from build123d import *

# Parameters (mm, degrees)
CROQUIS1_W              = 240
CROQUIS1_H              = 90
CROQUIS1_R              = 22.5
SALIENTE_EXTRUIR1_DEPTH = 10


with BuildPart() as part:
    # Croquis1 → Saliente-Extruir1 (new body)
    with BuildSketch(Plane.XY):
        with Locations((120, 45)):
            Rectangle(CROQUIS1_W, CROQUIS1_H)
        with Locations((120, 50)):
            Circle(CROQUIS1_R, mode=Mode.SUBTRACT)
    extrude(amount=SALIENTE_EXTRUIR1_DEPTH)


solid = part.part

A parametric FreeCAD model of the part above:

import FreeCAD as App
import Part
import Sketcher
from FreeCAD import Vector

doc = App.newDocument("Part")
params = doc.addObject("Spreadsheet::Sheet", "Params")
for row, (alias, value) in enumerate([
    ("sketch1_diameter", "45 mm"),
    ("sketch1_width", "240 mm"),
    ("sketch1_height", "90 mm"),
    ("pad1_length", "10 mm"),
], start=1):
    params.set(f"A{row}", alias)
    params.set(f"B{row}", "=" + value)
    params.setAlias(f"B{row}", alias)

body = doc.addObject("PartDesign::Body", "Body")

sketch1 = body.newObject("Sketcher::SketchObject", "Sketch")
sketch1.AttachmentSupport = (doc.getObject("XY_Plane"), [""])
sketch1.MapMode = "FlatFace"
sketch1.addGeometry([
    Part.LineSegment(Vector(0, 90, 0), Vector(0, 0, 0)),
    Part.LineSegment(Vector(0, 0, 0), Vector(240, 0, 0)),
    Part.LineSegment(Vector(240, 0, 0), Vector(240, 90, 0)),
    Part.LineSegment(Vector(240, 90, 0), Vector(0, 90, 0)),
    Part.Circle(Vector(120, 50, 0), Vector(0, 0, 1), 22),
], False)
sketch1.addConstraint([
    Sketcher.Constraint("Coincident", 0, 2, 1, 1),
    Sketcher.Constraint("Coincident", 1, 2, 2, 1),
    Sketcher.Constraint("Coincident", 2, 2, 3, 1),
    Sketcher.Constraint("Coincident", 3, 2, 0, 1),
    Sketcher.Constraint("Vertical", 0),
    Sketcher.Constraint("Horizontal", 1),
    Sketcher.Constraint("Vertical", 2),
    Sketcher.Constraint("Horizontal", 3),
    Sketcher.Constraint("Coincident", 0, 2, -1, 1),
    Sketcher.Constraint("Diameter", 4, 45.0),
    Sketcher.Constraint("DistanceX", 1, 1, 1, 2, 240.0),
    Sketcher.Constraint("DistanceY", 0, 2, 0, 1, 90.0),
    Sketcher.Constraint("DistanceX", -1, 1, 4, 3, 120.0),
    Sketcher.Constraint("DistanceY", -1, 1, 4, 3, 50.0),
])
sketch1.setExpression("Constraints[9]", "Params.sketch1_diameter")
sketch1.setExpression("Constraints[10]", "Params.sketch1_width")
sketch1.setExpression("Constraints[11]", "Params.sketch1_height")
pad1 = body.newObject("PartDesign::Pad", "Pad")
pad1.Profile = sketch1
pad1.setExpression("Length", "Params.pad1_length")

doc.recompute()
